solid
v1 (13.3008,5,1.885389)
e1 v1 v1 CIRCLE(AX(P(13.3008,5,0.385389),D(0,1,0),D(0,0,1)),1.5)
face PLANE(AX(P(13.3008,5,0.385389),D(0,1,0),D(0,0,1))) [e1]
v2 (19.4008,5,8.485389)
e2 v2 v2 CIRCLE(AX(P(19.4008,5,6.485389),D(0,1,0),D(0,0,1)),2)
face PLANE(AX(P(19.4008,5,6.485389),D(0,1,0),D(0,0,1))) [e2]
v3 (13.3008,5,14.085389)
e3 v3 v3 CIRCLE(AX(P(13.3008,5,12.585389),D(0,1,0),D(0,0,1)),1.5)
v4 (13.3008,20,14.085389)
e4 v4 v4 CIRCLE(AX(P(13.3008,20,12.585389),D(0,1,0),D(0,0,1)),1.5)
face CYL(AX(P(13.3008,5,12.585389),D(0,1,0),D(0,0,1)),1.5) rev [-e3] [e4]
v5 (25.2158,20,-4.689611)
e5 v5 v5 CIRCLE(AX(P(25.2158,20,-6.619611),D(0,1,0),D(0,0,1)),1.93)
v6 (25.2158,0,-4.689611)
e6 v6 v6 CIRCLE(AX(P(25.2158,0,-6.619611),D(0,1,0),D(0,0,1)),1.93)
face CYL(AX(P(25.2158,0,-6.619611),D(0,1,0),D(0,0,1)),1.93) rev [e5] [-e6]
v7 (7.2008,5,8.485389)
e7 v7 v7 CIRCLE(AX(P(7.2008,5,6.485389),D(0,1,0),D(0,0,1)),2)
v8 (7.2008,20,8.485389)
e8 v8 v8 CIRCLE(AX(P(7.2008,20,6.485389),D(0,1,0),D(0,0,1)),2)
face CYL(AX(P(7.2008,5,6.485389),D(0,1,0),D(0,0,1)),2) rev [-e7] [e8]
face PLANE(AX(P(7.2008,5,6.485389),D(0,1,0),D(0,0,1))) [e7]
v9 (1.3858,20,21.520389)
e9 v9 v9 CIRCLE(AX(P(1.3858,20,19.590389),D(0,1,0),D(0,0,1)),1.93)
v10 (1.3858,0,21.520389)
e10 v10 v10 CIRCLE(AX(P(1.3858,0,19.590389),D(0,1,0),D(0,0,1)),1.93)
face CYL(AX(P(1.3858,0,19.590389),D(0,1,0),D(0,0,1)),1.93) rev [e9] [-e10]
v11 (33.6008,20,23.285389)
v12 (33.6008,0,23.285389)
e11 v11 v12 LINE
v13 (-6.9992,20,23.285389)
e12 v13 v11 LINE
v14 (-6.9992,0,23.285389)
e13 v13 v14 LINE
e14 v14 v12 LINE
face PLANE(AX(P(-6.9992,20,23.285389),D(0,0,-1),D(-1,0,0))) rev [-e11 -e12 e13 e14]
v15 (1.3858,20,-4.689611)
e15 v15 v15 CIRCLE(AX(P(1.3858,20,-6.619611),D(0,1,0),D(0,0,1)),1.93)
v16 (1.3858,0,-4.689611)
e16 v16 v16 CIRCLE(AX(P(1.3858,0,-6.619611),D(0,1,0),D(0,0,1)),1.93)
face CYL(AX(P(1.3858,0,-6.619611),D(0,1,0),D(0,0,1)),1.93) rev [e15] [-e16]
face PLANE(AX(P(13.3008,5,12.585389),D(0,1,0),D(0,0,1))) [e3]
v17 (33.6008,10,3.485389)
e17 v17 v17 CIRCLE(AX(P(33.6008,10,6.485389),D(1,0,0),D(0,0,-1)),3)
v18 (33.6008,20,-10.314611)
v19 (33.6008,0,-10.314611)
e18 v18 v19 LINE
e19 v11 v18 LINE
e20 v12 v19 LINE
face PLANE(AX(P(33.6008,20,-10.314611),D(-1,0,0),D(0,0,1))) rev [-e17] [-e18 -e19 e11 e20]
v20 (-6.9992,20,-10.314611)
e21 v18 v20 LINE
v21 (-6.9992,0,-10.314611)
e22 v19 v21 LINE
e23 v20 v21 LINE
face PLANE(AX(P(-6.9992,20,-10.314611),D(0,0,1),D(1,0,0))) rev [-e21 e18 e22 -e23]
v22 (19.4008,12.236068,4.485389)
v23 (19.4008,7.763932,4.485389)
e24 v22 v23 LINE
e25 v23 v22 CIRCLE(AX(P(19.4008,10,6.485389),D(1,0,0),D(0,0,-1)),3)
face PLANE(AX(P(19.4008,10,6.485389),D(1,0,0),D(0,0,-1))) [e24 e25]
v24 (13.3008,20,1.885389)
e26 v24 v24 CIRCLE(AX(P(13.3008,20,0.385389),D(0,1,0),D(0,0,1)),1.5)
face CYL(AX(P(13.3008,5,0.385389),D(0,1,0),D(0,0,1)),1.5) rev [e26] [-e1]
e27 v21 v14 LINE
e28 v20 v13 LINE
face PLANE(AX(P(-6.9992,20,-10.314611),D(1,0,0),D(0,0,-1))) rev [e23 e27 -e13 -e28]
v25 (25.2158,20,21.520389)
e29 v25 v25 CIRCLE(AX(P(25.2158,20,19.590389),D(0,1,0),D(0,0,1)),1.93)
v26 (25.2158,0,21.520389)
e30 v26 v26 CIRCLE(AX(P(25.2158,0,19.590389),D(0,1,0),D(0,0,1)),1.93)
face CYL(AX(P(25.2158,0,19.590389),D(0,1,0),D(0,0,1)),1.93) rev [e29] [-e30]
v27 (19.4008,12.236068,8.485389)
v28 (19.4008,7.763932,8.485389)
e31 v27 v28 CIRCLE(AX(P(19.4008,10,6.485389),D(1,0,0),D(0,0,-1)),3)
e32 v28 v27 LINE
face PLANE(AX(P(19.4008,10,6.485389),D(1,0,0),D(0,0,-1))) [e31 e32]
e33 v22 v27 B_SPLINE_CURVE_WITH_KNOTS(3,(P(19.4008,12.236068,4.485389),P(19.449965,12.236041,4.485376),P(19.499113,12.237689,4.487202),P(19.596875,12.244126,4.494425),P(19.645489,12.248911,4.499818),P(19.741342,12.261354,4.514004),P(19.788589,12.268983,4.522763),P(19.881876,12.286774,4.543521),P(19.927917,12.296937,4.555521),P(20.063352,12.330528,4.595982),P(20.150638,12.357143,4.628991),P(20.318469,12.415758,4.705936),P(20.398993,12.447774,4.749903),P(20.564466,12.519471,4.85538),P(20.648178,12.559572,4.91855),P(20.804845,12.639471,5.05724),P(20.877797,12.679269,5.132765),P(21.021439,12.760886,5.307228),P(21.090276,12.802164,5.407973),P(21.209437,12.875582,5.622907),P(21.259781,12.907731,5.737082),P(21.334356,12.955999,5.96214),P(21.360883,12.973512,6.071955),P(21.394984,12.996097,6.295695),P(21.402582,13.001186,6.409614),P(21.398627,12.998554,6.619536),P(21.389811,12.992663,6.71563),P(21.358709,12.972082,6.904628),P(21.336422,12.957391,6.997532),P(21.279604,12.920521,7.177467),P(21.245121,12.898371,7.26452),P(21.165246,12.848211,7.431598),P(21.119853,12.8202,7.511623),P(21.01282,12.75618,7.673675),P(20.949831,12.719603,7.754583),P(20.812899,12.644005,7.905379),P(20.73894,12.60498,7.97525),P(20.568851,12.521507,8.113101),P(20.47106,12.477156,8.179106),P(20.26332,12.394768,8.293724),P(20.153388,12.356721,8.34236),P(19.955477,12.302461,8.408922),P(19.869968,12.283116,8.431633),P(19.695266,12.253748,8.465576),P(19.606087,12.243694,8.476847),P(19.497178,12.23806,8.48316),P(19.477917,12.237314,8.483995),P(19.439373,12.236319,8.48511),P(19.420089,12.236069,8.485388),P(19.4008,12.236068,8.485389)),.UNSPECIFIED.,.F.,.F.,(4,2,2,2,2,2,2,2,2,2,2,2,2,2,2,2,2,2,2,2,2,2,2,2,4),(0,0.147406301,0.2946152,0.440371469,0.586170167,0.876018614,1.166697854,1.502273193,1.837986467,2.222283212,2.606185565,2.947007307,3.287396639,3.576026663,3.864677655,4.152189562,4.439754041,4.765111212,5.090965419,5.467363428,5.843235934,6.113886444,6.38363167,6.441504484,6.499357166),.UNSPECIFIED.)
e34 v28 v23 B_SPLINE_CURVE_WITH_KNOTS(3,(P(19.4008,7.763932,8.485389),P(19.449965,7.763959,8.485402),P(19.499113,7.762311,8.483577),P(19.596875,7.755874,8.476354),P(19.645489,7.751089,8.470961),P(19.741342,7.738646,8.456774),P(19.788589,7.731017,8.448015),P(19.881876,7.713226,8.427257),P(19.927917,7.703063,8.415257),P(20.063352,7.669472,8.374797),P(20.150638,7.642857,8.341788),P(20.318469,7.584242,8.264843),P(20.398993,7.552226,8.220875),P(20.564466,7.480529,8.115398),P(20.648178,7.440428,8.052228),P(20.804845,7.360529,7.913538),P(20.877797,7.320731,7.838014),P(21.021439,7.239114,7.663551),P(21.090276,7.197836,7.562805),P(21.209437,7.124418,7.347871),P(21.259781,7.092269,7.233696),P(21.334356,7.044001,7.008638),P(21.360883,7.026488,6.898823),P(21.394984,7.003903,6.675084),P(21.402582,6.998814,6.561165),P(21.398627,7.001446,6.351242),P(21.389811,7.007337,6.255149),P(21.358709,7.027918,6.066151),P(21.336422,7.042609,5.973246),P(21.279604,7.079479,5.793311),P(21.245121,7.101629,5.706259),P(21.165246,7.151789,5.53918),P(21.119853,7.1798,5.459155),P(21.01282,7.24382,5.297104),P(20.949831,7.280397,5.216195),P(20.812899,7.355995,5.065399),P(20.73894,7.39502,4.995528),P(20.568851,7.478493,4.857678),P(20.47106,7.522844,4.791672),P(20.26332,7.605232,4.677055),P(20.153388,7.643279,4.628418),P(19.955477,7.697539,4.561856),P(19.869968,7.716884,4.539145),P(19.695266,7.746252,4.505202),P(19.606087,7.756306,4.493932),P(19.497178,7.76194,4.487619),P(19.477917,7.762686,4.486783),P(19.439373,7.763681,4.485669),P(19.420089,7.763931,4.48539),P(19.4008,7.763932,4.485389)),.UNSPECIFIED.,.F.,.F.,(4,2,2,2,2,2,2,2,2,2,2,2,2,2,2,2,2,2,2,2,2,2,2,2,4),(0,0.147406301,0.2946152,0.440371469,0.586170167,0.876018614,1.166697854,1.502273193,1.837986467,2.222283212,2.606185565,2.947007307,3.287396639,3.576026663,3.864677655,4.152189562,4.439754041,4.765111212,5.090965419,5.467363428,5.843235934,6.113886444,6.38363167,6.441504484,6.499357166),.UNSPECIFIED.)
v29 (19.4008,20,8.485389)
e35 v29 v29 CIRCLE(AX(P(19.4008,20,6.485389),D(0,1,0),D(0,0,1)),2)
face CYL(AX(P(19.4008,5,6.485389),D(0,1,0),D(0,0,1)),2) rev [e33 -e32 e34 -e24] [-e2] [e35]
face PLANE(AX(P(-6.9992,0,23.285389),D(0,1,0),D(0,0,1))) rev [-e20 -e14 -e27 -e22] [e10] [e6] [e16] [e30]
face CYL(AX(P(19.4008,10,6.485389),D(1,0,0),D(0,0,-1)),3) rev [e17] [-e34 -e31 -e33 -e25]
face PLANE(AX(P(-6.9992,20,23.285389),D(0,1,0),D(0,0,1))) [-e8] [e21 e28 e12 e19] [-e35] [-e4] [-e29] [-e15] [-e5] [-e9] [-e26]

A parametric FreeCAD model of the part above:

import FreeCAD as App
import Part
import Sketcher

V = App.Vector


def add_polygon(sketch, points):
    """Adds a closed chain of lines whose ends are joined by coincident constraints."""
    first, n = sketch.GeometryCount, len(points)
    for a, b in zip(points, points[1:] + points[:1]):
        sketch.addGeometry(Part.LineSegment(App.Vector(*a, 0), App.Vector(*b, 0)), False)
    for i in range(n):
        sketch.addConstraint(Sketcher.Constraint("Coincident", first + i, 2, first + (i + 1) % n, 1))

doc = App.newDocument("Part")
params = doc.addObject("Spreadsheet::Sheet", "Params")
for row, (alias, value) in enumerate([
    ("sketch1_width", "40.6 mm"),
    ("sketch1_height", "33.6 mm"),
    ("pad1_length", "20 mm"),
    ("sketch2_diameter", "3.86 mm"),
    ("sketch3_diameter", "4 mm"),
    ("sketch3_diameter2", "3 mm"),
    ("pocket2_length", "15 mm"),
    ("sketch4_diameter", "6 mm"),
    ("pocket3_length", "14.2 mm"),
], start=1):
    params.set(f"A{row}", alias)
    params.set(f"B{row}", "=" + value)
    params.setAlias(f"B{row}", alias)

body = doc.addObject("PartDesign::Body", "Body")

sketch1 = body.newObject("Sketcher::SketchObject", "Sketch")
sketch1.AttachmentSupport = (doc.getObject("XZ_Plane"), [""])
sketch1.MapMode = "FlatFace"
add_polygon(sketch1, [(-6.9992, -10.314611), (-6.9992, 23.285389), (33.6008, 23.285389), (33.6008, -10.314611)])
sketch1.addConstraint(Sketcher.Constraint("Vertical", 0))
sketch1.addConstraint(Sketcher.Constraint("Horizontal", 1))
sketch1.addConstraint(Sketcher.Constraint("Vertical", 2))
sketch1.addConstraint(Sketcher.Constraint("Horizontal", 3))
sketch1.addConstraint(Sketcher.Constraint("DistanceX", 1, 1, 1, 2, 40.6))
sketch1.addConstraint(Sketcher.Constraint("DistanceY", 0, 1, 0, 2, 33.6))
sketch1.addConstraint(Sketcher.Constraint("DistanceX", 0, 2, -1, 1, 6.9992))
sketch1.addConstraint(Sketcher.Constraint("DistanceY", -1, 1, 0, 2, 23.285389))
sketch1.setExpression("Constraints[8]", "Params.sketch1_width")
sketch1.setExpression("Constraints[9]", "Params.sketch1_height")
pad1 = body.newObject("PartDesign::Pad", "Pad")
pad1.Profile = sketch1
pad1.setExpression("Length", "Params.pad1_length")
pad1.Reversed = True

sketch2 = body.newObject("Sketcher::SketchObject", "Sketch001")
sketch2.AttachmentSupport = (doc.getObject("XZ_Plane"), [""])
sketch2.MapMode = "FlatFace"
sketch2.AttachmentOffset = App.Placement(V(0, 0, -20), App.Rotation())
sketch2.addGeometry(Part.Circle(V(1.3858, -6.619611, 0), V(0, 0, 1), 1.93), False)
sketch2.addGeometry(Part.Circle(V(25.2158, -6.619611, 0), V(0, 0, 1), 1.93), False)
sketch2.addGeometry(Part.Circle(V(1.3858, 19.590389, 0), V(0, 0, 1), 1.93), False)
sketch2.addGeometry(Part.Circle(V(25.2158, 19.590389, 0), V(0, 0, 1), 1.93), False)
sketch2.addConstraint(Sketcher.Constraint("Equal", 0, 1))
sketch2.addConstraint(Sketcher.Constraint("Equal", 1, 2))
sketch2.addConstraint(Sketcher.Constraint("Equal", 2, 3))
sketch2.addConstraint(Sketcher.Constraint("Horizontal", 0, 3, 1, 3))
sketch2.addConstraint(Sketcher.Constraint("Horizontal", 2, 3, 3, 3))
sketch2.addConstraint(Sketcher.Constraint("Vertical", 0, 3, 2, 3))
sketch2.addConstraint(Sketcher.Constraint("Vertical", 1, 3, 3, 3))
sketch2.addConstraint(Sketcher.Constraint("Diameter", 0, 3.86))
sketch2.addConstraint(Sketcher.Constraint("DistanceX", 0, 3, 1, 3, 23.83))
sketch2.addConstraint(Sketcher.Constraint("DistanceY", 0, 3, 2, 3, 26.21))
sketch2.addConstraint(Sketcher.Constraint("DistanceX", -1, 1, 0, 3, 1.3858))
sketch2.addConstraint(Sketcher.Constraint("DistanceY", 0, 3, -1, 1, 6.619611))
sketch2.setExpression("Constraints[7]", "Params.sketch2_diameter")
pocket1 = body.newObject("PartDesign::Pocket", "Pocket")
pocket1.Profile = sketch2
pocket1.Type = "ThroughAll"
pocket1.Reversed = True

sketch3 = body.newObject("Sketcher::SketchObject", "Sketch002")
sketch3.AttachmentSupport = (doc.getObject("XZ_Plane"), [""])
sketch3.MapMode = "FlatFace"
sketch3.AttachmentOffset = App.Placement(V(0, 0, -20), App.Rotation())
sketch3.addGeometry(Part.Circle(V(7.2008, 6.485389, 0), V(0, 0, 1), 2), False)
sketch3.addGeometry(Part.Circle(V(13.3008, 0.385389, 0), V(0, 0, 1), 1.5), False)
sketch3.addGeometry(Part.Circle(V(19.4008, 6.485389, 0), V(0, 0, 1), 2), False)
sketch3.addGeometry(Part.Circle(V(13.3008, 12.585389, 0), V(0, 0, 1), 1.5), False)
sketch3.addConstraint(Sketcher.Constraint("Equal", 0, 2))
sketch3.addConstraint(Sketcher.Constraint("Equal", 1, 3))
sketch3.addConstraint(Sketcher.Constraint("Horizontal", 0, 3, 2, 3))
sketch3.addConstraint(Sketcher.Constraint("Vertical", 1, 3, 3, 3))
sketch3.addConstraint(Sketcher.Constraint("Diameter", 0, 4.0))
sketch3.addConstraint(Sketcher.Constraint("Diameter", 1, 3.0))
sketch3.addConstraint(Sketcher.Constraint("DistanceX", 0, 3, 1, 3, 6.1))
sketch3.addConstraint(Sketcher.Constraint("DistanceY", 1, 3, 0, 3, 6.1))
sketch3.addConstraint(Sketcher.Constraint("DistanceX", 1, 3, 2, 3, 6.1))
sketch3.addConstraint(Sketcher.Constraint("DistanceY", 2, 3, 3, 3, 6.1))
sketch3.addConstraint(Sketcher.Constraint("DistanceX", -1, 1, 0, 3, 7.2008))
sketch3.addConstraint(Sketcher.Constraint("DistanceY", -1, 1, 0, 3, 6.485389))
sketch3.setExpression("Constraints[4]", "Params.sketch3_diameter")
sketch3.setExpression("Constraints[5]", "Params.sketch3_diameter2")
pocket2 = body.newObject("PartDesign::Pocket", "Pocket001")
pocket2.Profile = sketch3
pocket2.setExpression("Length", "Params.pocket2_length")
pocket2.Reversed = True

sketch4 = body.newObject("Sketcher::SketchObject", "Sketch003")
sketch4.AttachmentSupport = (doc.getObject("YZ_Plane"), [""])
sketch4.MapMode = "FlatFace"
sketch4.AttachmentOffset = App.Placement(V(0, 0, 33.6008), App.Rotation())
sketch4.addGeometry(Part.Circle(V(10, 6.485389, 0), V(0, 0, 1), 3), False)
sketch4.addConstraint(Sketcher.Constraint("Diameter", 0, 6.0))
sketch4.addConstraint(Sketcher.Constraint("DistanceX", -1, 1, 0, 3, 10.0))
sketch4.addConstraint(Sketcher.Constraint("DistanceY", -1, 1, 0, 3, 6.485389))
sketch4.setExpression("Constraints[0]", "Params.sketch4_diameter")
pocket3 = body.newObject("PartDesign::Pocket", "Pocket002")
pocket3.Profile = sketch4
pocket3.setExpression("Length", "Params.pocket3_length")

doc.recompute()
